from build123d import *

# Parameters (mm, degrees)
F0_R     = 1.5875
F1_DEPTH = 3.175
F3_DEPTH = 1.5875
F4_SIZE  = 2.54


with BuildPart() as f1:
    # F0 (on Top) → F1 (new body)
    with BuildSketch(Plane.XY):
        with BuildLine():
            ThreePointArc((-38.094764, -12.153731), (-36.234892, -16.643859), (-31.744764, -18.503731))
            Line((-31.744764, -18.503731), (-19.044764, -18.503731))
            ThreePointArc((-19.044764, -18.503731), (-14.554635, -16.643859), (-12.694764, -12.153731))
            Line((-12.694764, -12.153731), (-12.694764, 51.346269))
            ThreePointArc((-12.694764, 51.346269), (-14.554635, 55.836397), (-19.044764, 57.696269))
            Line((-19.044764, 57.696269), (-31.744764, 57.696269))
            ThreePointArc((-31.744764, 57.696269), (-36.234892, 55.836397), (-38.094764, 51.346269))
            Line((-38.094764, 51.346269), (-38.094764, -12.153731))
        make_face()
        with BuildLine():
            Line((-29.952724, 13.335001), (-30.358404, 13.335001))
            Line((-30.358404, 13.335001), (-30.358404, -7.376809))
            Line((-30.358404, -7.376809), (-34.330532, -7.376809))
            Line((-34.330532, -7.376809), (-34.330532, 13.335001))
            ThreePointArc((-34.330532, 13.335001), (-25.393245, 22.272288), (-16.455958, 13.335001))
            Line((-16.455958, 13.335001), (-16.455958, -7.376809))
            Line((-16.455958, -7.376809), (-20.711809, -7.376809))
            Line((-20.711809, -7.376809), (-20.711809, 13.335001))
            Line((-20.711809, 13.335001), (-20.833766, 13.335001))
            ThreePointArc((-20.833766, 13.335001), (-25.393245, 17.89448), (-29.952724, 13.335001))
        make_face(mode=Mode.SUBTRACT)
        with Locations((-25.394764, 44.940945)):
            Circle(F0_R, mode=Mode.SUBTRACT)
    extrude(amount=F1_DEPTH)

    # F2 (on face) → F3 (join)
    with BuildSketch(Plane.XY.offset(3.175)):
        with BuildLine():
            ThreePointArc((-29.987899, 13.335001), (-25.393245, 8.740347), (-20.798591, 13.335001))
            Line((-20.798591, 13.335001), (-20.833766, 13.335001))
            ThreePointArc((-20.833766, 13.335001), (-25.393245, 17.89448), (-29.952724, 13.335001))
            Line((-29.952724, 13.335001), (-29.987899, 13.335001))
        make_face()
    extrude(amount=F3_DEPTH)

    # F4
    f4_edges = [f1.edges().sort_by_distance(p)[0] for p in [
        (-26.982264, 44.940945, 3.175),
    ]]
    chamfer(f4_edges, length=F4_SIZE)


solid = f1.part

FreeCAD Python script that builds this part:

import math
import FreeCAD as App
import Part
import Sketcher
from FreeCAD import Vector
Q = App.Units.Quantity


def edges_at(feature, points):
    """Names of the edges that pass closest to the given points."""
    edges = feature.Shape.Edges
    near = lambda p: min(range(len(edges)), key=lambda i: edges[i].distToShape(Part.Vertex(*p))[0])
    return sorted({f"Edge{near(p) + 1}" for p in points})

doc = App.newDocument("Part")
body = doc.addObject("PartDesign::Body", "Body")

# Sketch on XY plane
sketch1 = doc.addObject("Sketcher::SketchObject", "Sketch")
body.addObject(sketch1)
sketch1.AttachmentSupport = (doc.XY_Plane, [""])
sketch1.MapMode = "FlatFace"
sketch1.addGeometry(Part.ArcOfCircle(Part.Circle(Vector(-31.74, -12.15, 0), Vector(0, 0, 1), 6.35), math.radians(-180), math.radians(-90)), False)
sketch1.addGeometry(Part.LineSegment(Vector(-31.74, -18.5, 0), Vector(-19.04, -18.5, 0)), False)
sketch1.addGeometry(Part.ArcOfCircle(Part.Circle(Vector(-19.04, -12.15, 0), Vector(0, 0, 1), 6.35), math.radians(-90), math.radians(0)), False)
sketch1.addGeometry(Part.LineSegment(Vector(-12.69, -12.15, 0), Vector(-12.69, 51.35, 0)), False)
sketch1.addGeometry(Part.ArcOfCircle(Part.Circle(Vector(-19.04, 51.35, 0), Vector(0, 0, 1), 6.35), math.radians(0), math.radians(90)), False)
sketch1.addGeometry(Part.LineSegment(Vector(-19.04, 57.7, 0), Vector(-31.74, 57.7, 0)), False)
sketch1.addGeometry(Part.ArcOfCircle(Part.Circle(Vector(-31.74, 51.35, 0), Vector(0, 0, 1), 6.35), math.radians(90), math.radians(180)), False)
sketch1.addGeometry(Part.LineSegment(Vector(-38.09, 51.35, 0), Vector(-38.09, -12.15, 0)), False)
sketch1.addGeometry(Part.ArcOfCircle(Part.Circle(Vector(-25.39, 13.34, 0), Vector(0, 0, 1), 4.56), math.radians(0), math.radians(180)), False)
sketch1.addGeometry(Part.LineSegment(Vector(-29.95, 13.34, 0), Vector(-30.36, 13.34, 0)), False)
sketch1.addGeometry(Part.LineSegment(Vector(-30.36, 13.34, 0), Vector(-30.36, -7.38, 0)), False)
sketch1.addGeometry(Part.LineSegment(Vector(-30.36, -7.38, 0), Vector(-34.33, -7.38, 0)), False)
sketch1.addGeometry(Part.LineSegment(Vector(-34.33, -7.38, 0), Vector(-34.33, 13.34, 0)), False)
sketch1.addGeometry(Part.ArcOfCircle(Part.Circle(Vector(-25.39, 13.34, 0), Vector(0, 0, 1), 8.94), math.radians(0), math.radians(180)), False)
sketch1.addGeometry(Part.LineSegment(Vector(-16.46, 13.34, 0), Vector(-16.46, -7.38, 0)), False)
sketch1.addGeometry(Part.LineSegment(Vector(-16.46, -7.38, 0), Vector(-20.71, -7.38, 0)), False)
sketch1.addGeometry(Part.LineSegment(Vector(-20.71, -7.38, 0), Vector(-20.71, 13.34, 0)), False)
sketch1.addGeometry(Part.LineSegment(Vector(-20.71, 13.34, 0), Vector(-20.83, 13.34, 0)), False)
sketch1.addGeometry(Part.Circle(Vector(-25.39, 44.94, 0), Vector(0, 0, 1), 1.59), False)
sketch1.addConstraint(Sketcher.Constraint("Tangent", 0, 2, 1, 1))
sketch1.addConstraint(Sketcher.Constraint("Tangent", 1, 2, 2, 1))
sketch1.addConstraint(Sketcher.Constraint("Tangent", 2, 2, 3, 1))
sketch1.addConstraint(Sketcher.Constraint("Tangent", 3, 2, 4, 1))
sketch1.addConstraint(Sketcher.Constraint("Tangent", 4, 2, 5, 1))
sketch1.addConstraint(Sketcher.Constraint("Tangent", 5, 2, 6, 1))
sketch1.addConstraint(Sketcher.Constraint("Tangent", 6, 2, 7, 1))
sketch1.addConstraint(Sketcher.Constraint("Tangent", 7, 2, 0, 1))
sketch1.addConstraint(Sketcher.Constraint("Coincident", 8, 2, 9, 1))
sketch1.addConstraint(Sketcher.Constraint("Coincident", 9, 2, 10, 1))
sketch1.addConstraint(Sketcher.Constraint("Coincident", 10, 2, 11, 1))
sketch1.addConstraint(Sketcher.Constraint("Coincident", 11, 2, 12, 1))
sketch1.addConstraint(Sketcher.Constraint("Tangent", 12, 2, 13, 2))
sketch1.addConstraint(Sketcher.Constraint("Tangent", 13, 1, 14, 1))
sketch1.addConstraint(Sketcher.Constraint("Coincident", 14, 2, 15, 1))
sketch1.addConstraint(Sketcher.Constraint("Coincident", 15, 2, 16, 1))
sketch1.addConstraint(Sketcher.Constraint("Coincident", 16, 2, 17, 1))
sketch1.addConstraint(Sketcher.Constraint("Coincident", 17, 2, 8, 1))
sketch1.addConstraint(Sketcher.Constraint("Horizontal", 1))
sketch1.addConstraint(Sketcher.Constraint("Vertical", 3))
sketch1.addConstraint(Sketcher.Constraint("Horizontal", 5))
sketch1.addConstraint(Sketcher.Constraint("Vertical", 7))
sketch1.addConstraint(Sketcher.Constraint("Horizontal", 9))
sketch1.addConstraint(Sketcher.Constraint("Vertical", 10))
sketch1.addConstraint(Sketcher.Constraint("Horizontal", 11))
sketch1.addConstraint(Sketcher.Constraint("Vertical", 12))
sketch1.addConstraint(Sketcher.Constraint("Vertical", 14))
sketch1.addConstraint(Sketcher.Constraint("Horizontal", 15))
sketch1.addConstraint(Sketcher.Constraint("Vertical", 16))
sketch1.addConstraint(Sketcher.Constraint("Horizontal", 17))
sketch1.addConstraint(Sketcher.Constraint("Coincident", 13, 3, 8, 3))
sketch1.addConstraint(Sketcher.Constraint("Equal", 0, 2))
sketch1.addConstraint(Sketcher.Constraint("Equal", 2, 4))
sketch1.addConstraint(Sketcher.Constraint("Equal", 4, 6))
sketch1.addConstraint(Sketcher.Constraint("Horizontal", 13, 3, 8, 2))
sketch1.addConstraint(Sketcher.Constraint("Horizontal", 11, 2, 14, 2))
sketch1.addConstraint(Sketcher.Constraint("Horizontal", 13, 1, 16, 2))
sketch1.addConstraint(Sketcher.Constraint("Radius", 0, Q("0.25 in")))
sketch1.addConstraint(Sketcher.Constraint("Diameter", 18, Q("0.125 in")))
sketch1.addConstraint(Sketcher.Constraint("DistanceX", 1, 1, 1, 2, Q("0.5 in")))
sketch1.addConstraint(Sketcher.Constraint("DistanceY", 3, 1, 3, 2, Q("2.5 in")))
sketch1.addConstraint(Sketcher.Constraint("DistanceX", 18, 3, 3, 2, Q("0.5 in")))
sketch1.addConstraint(Sketcher.Constraint("DistanceY", -1, 1, 8, 3, Q("0.525 in")))
sketch1.addConstraint(Sketcher.Constraint("Radius", 8, 4.559479))
sketch1.addConstraint(Sketcher.Constraint("Radius", 13, 8.937287))
sketch1.addConstraint(Sketcher.Constraint("DistanceX", 9, 2, 9, 1, 0.40568))
sketch1.addConstraint(Sketcher.Constraint("DistanceX", 15, 2, 15, 1, 4.255851))
sketch1.addConstraint(Sketcher.Constraint("DistanceY", 10, 2, 10, 1, 20.71181))
sketch1.addConstraint(Sketcher.Constraint("DistanceY", 0, 3, -1, 1, 12.153731))
sketch1.addConstraint(Sketcher.Constraint("DistanceX", 11, 2, -1, 1, 34.330532))
sketch1.addConstraint(Sketcher.Constraint("DistanceX", 0, 3, 8, 3, 6.351519))
sketch1.addConstraint(Sketcher.Constraint("DistanceY", -1, 1, 18, 3, 44.940945))
pad1 = doc.addObject("PartDesign::Pad", "Pad")
body.addObject(pad1)
pad1.Profile = sketch1
pad1.Length = Q("0.125 in")

# Sketch on XY plane
sketch2 = doc.addObject("Sketcher::SketchObject", "Sketch001")
body.addObject(sketch2)
sketch2.AttachmentSupport = (doc.XY_Plane, [""])
sketch2.MapMode = "FlatFace"
sketch2.AttachmentOffset = App.Placement(Vector(0, 0, 0.125 * 25.4), App.Rotation())
sketch2.addGeometry(Part.ArcOfCircle(Part.Circle(Vector(-25.393, 13.335, 0), Vector(0, 0, 1), 4.595), math.radians(180), math.radians(360)), False)
sketch2.addGeometry(Part.LineSegment(Vector(-20.799, 13.335, 0), Vector(-20.834, 13.335, 0)), False)
sketch2.addGeometry(Part.ArcOfCircle(Part.Circle(Vector(-25.393, 13.335, 0), Vector(0, 0, 1), 4.559), math.radians(0), math.radians(180)), False)
sketch2.addGeometry(Part.LineSegment(Vector(-29.953, 13.335, 0), Vector(-29.988, 13.335, 0)), False)
sketch2.addConstraint(Sketcher.Constraint("Coincident", 0, 2, 1, 1))
sketch2.addConstraint(Sketcher.Constraint("Coincident", 1, 2, 2, 1))
sketch2.addConstraint(Sketcher.Constraint("Coincident", 2, 2, 3, 1))
sketch2.addConstraint(Sketcher.Constraint("Coincident", 3, 2, 0, 1))
sketch2.addConstraint(Sketcher.Constraint("Horizontal", 1))
sketch2.addConstraint(Sketcher.Constraint("Horizontal", 3))
sketch2.addConstraint(Sketcher.Constraint("Coincident", 2, 3, 0, 3))
sketch2.addConstraint(Sketcher.Constraint("Horizontal", 2, 3, 0, 2))
sketch2.addConstraint(Sketcher.Constraint("Horizontal", 1, 2, 2, 2))
sketch2.addConstraint(Sketcher.Constraint("DistanceY", -1, 1, 0, 3, Q("0.525 in")))
sketch2.addConstraint(Sketcher.Constraint("Radius", 2, 4.559479))
sketch2.addConstraint(Sketcher.Constraint("Radius", 0, 4.594654))
sketch2.addConstraint(Sketcher.Constraint("DistanceX", 3, 2, -1, 1, 29.987899))
pad2 = doc.addObject("PartDesign::Pad", "Pad001")
body.addObject(pad2)
pad2.Profile = sketch2
pad2.Length = Q("0.0625 in")
doc.recompute()

chamfer = doc.addObject("PartDesign::Chamfer", "Chamfer")
body.addObject(chamfer)
chamfer.Base = (pad2, edges_at(pad2, [(-26.982, 44.941, 3.175)]))
chamfer.Size = Q("0.1 in")

doc.recompute()
